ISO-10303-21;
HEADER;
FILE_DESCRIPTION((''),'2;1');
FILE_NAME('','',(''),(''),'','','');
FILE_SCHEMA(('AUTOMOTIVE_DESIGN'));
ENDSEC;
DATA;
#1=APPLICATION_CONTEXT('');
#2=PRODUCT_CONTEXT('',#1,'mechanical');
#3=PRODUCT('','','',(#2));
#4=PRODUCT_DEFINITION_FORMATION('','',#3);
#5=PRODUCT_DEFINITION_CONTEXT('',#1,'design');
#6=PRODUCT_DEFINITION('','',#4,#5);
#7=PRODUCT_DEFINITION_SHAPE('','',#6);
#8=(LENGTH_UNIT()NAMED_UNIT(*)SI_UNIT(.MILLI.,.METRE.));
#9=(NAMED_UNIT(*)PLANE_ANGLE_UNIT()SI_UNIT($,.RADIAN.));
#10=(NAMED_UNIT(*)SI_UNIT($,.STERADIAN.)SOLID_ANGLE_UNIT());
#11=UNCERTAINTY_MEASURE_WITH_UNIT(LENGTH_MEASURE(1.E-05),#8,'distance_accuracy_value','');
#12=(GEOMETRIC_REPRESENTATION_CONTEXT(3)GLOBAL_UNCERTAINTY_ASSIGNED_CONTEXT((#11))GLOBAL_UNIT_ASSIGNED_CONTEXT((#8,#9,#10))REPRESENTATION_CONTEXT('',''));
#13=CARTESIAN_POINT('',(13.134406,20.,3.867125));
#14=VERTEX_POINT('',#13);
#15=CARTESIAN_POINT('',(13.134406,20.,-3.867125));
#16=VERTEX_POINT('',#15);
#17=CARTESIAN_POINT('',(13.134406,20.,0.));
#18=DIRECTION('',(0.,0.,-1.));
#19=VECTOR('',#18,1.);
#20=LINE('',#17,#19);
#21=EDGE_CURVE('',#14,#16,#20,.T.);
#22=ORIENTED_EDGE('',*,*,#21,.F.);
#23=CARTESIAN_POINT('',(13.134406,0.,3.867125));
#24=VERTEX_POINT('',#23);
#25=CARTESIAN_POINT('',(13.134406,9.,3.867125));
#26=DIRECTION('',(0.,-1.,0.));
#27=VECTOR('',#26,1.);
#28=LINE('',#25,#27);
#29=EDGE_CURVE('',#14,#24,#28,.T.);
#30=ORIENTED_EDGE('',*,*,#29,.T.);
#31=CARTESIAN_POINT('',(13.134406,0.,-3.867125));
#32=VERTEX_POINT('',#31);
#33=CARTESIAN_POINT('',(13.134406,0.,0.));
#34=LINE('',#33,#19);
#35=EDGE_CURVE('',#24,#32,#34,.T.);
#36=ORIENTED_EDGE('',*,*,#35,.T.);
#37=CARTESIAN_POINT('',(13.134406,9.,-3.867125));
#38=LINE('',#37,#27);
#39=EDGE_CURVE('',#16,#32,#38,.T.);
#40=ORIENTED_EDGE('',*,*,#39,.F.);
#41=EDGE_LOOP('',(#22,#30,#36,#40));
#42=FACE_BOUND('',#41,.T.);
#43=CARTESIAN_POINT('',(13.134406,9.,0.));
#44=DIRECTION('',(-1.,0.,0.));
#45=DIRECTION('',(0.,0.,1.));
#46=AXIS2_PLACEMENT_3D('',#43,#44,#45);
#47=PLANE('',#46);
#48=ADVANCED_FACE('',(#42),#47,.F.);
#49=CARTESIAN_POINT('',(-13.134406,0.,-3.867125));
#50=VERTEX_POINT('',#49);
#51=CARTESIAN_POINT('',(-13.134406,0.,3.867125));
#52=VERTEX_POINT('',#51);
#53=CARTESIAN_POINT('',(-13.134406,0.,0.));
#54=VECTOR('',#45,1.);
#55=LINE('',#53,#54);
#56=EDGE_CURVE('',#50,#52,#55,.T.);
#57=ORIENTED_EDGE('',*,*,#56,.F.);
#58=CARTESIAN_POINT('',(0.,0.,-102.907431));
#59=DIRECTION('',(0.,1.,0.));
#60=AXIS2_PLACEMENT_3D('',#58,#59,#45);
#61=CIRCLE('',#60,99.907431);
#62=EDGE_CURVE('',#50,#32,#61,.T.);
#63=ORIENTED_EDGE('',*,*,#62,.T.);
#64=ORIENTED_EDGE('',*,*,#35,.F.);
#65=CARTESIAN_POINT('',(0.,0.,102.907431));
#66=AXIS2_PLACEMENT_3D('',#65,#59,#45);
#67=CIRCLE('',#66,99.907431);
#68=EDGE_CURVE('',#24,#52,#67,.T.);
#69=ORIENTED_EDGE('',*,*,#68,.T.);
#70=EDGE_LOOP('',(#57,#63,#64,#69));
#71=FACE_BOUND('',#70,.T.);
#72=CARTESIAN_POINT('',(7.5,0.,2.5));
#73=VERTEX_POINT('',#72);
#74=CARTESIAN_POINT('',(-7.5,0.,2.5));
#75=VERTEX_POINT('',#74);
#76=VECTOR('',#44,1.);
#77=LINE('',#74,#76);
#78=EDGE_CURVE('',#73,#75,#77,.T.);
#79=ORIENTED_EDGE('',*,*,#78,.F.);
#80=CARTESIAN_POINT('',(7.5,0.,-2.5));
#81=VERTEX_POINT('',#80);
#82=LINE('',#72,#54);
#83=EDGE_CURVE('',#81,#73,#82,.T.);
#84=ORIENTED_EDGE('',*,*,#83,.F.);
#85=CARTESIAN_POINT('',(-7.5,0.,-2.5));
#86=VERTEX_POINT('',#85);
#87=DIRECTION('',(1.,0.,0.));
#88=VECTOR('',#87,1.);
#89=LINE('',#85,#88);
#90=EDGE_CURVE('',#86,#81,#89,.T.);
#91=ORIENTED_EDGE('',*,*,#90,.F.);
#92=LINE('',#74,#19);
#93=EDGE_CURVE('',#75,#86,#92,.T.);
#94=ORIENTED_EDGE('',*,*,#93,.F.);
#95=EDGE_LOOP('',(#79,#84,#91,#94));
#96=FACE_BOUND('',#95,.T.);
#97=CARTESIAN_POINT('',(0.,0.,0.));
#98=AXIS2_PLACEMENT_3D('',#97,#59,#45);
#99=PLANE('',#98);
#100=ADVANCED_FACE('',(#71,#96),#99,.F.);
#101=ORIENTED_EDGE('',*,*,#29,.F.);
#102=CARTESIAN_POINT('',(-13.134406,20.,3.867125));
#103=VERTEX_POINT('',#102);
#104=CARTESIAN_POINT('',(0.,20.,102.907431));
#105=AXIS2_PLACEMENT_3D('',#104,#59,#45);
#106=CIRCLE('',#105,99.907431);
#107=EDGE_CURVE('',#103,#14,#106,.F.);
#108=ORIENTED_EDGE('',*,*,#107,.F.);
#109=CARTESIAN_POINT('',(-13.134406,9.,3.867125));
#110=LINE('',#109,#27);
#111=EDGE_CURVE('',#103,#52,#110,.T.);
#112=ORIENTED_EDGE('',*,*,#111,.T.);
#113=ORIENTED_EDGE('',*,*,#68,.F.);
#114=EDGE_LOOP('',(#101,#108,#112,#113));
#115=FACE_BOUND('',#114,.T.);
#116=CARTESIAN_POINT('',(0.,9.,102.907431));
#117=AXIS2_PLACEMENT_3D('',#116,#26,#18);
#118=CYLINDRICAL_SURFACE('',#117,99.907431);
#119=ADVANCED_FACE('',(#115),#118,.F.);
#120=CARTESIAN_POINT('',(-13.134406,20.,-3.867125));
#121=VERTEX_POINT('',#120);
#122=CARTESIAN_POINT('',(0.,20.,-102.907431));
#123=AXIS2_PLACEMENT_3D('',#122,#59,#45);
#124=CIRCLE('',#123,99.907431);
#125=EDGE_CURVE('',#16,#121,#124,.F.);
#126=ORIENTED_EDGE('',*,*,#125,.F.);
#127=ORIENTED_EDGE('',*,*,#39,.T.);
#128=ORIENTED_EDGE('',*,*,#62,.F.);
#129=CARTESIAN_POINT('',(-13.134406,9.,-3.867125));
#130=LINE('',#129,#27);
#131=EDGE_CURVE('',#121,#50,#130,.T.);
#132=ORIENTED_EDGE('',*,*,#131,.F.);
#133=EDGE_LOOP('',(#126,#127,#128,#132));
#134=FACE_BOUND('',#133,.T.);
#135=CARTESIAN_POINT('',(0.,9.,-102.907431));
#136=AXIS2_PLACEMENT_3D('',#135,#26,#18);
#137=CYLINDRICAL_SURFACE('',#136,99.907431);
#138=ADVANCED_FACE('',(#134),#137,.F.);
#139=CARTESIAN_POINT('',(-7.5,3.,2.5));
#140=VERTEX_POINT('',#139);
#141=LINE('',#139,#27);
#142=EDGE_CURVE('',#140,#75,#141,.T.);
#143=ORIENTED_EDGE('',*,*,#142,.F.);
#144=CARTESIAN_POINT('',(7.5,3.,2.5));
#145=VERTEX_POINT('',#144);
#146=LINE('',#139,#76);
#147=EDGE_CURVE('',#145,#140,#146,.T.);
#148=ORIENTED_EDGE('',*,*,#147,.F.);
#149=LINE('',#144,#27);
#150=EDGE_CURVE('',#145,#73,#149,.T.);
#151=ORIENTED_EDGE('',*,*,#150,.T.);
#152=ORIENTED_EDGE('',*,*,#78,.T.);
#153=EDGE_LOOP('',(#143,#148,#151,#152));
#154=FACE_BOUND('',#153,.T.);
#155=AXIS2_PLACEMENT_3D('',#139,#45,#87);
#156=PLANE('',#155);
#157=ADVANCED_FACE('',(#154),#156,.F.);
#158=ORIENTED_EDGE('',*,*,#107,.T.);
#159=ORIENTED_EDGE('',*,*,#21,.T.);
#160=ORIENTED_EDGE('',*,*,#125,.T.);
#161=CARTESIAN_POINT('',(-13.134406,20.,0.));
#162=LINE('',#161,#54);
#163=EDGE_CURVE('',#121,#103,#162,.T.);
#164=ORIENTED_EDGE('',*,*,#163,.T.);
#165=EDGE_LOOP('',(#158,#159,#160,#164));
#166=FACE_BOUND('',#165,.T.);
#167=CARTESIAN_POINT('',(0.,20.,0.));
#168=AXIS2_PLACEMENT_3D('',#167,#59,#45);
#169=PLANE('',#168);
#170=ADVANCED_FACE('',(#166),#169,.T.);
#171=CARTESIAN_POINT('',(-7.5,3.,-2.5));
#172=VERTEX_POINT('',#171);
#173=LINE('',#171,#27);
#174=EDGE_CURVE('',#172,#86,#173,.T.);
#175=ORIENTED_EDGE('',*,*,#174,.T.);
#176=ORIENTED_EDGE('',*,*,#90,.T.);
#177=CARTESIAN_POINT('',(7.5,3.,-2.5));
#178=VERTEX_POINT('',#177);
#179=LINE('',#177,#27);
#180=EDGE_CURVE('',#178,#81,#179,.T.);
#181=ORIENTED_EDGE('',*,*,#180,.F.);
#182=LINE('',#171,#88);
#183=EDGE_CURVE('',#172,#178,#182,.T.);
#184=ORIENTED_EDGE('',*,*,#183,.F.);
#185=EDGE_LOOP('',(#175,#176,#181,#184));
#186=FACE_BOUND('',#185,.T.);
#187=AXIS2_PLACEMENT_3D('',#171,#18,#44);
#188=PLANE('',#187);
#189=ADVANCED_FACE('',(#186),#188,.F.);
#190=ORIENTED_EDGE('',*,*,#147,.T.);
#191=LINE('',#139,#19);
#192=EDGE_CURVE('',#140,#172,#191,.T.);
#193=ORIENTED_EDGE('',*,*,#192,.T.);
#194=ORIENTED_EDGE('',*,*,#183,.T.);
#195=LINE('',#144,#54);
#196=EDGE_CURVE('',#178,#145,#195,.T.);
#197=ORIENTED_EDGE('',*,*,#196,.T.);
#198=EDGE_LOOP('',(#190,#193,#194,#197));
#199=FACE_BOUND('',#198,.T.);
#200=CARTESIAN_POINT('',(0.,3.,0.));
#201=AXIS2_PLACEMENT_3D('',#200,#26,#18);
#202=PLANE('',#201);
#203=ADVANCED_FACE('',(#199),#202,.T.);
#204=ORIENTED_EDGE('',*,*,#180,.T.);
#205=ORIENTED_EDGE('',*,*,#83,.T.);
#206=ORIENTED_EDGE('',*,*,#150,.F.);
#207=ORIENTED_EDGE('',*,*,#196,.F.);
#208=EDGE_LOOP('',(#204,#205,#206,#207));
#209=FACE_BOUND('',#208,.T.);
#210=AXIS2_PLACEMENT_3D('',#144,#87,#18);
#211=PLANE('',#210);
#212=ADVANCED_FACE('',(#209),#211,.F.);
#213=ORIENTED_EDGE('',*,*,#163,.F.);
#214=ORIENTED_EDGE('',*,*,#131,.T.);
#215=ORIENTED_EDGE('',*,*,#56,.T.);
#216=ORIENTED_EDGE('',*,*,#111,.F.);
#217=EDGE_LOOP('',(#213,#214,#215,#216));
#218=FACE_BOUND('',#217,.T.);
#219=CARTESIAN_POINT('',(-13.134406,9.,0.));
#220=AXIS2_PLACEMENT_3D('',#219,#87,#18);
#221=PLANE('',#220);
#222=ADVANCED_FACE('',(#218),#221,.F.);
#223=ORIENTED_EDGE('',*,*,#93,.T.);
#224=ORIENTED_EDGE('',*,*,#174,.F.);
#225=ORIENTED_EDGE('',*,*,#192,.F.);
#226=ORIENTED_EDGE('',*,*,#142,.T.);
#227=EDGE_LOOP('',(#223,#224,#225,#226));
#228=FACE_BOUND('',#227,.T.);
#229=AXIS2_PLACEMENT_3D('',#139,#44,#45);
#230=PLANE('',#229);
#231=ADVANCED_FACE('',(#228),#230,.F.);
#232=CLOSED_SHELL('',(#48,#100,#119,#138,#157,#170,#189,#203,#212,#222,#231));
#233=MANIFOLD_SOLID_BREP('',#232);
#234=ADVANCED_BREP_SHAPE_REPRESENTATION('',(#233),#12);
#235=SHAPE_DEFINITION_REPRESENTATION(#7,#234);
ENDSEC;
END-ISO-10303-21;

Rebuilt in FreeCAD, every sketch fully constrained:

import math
import FreeCAD as App
import Part
import Sketcher

V = App.Vector

doc = App.newDocument("Part")
body = doc.addObject("PartDesign::Body", "Body")

sketch1 = body.newObject("Sketcher::SketchObject", "Sketch")
sketch1.AttachmentSupport = (doc.getObject("XZ_Plane"), [""])
sketch1.MapMode = "FlatFace"
sketch1.addGeometry(Part.ArcOfCircle(Part.Circle(V(0, -103, 0), V(0, 0, 1), 100), math.radians(82.45), math.radians(97.55)), False)
sketch1.addGeometry(Part.LineSegment(V(-13, -4, 0), V(-13, 4, 0)), False)
sketch1.addGeometry(Part.ArcOfCircle(Part.Circle(V(0, 103, 0), V(0, 0, 1), 100), math.radians(-97.55), math.radians(-82.45)), False)
sketch1.addGeometry(Part.LineSegment(V(13, 4, 0), V(13, -4, 0)), False)
sketch1.addConstraint(Sketcher.Constraint("Coincident", 0, 2, 1, 1))
sketch1.addConstraint(Sketcher.Constraint("Coincident", 1, 2, 2, 1))
sketch1.addConstraint(Sketcher.Constraint("Coincident", 2, 2, 3, 1))
sketch1.addConstraint(Sketcher.Constraint("Coincident", 3, 2, 0, 1))
sketch1.addConstraint(Sketcher.Constraint("Vertical", 1))
sketch1.addConstraint(Sketcher.Constraint("Vertical", 3))
sketch1.addConstraint(Sketcher.Constraint("Equal", 0, 2))
sketch1.addConstraint(Sketcher.Constraint("Symmetric", 0, 3, 2, 3, -1, 1))
sketch1.addConstraint(Sketcher.Constraint("Symmetric", 1, 2, 2, 2, -2))
sketch1.addConstraint(Sketcher.Constraint("Radius", 0, 99.907431))
sketch1.addConstraint(Sketcher.Constraint("DistanceY", 1, 1, 1, 2, 7.734251))
sketch1.addConstraint(Sketcher.Constraint("DistanceY", 0, 3, -1, 1, 102.907431))
pad1 = body.newObject("PartDesign::Pad", "Pad")
pad1.Profile = sketch1
pad1.Length = 9
pad1.Reversed = True

sketch2 = body.newObject("Sketcher::SketchObject", "Sketch001")
sketch2.AttachmentSupport = (doc.getObject("XZ_Plane"), [""])
sketch2.MapMode = "FlatFace"
sketch2.AttachmentOffset = App.Placement(V(0, 0, -9), App.Rotation())
sketch2.addGeometry(Part.LineSegment(V(13, 4, 0), V(13, -4, 0)), False)
sketch2.addGeometry(Part.ArcOfCircle(Part.Circle(V(0, -103, 0), V(0, 0, 1), 100), math.radians(82.45), math.radians(97.55)), False)
sketch2.addGeometry(Part.LineSegment(V(-13, -4, 0), V(-13, 4, 0)), False)
sketch2.addGeometry(Part.ArcOfCircle(Part.Circle(V(0, 103, 0), V(0, 0, 1), 100), math.radians(-97.55), math.radians(-82.45)), False)
sketch2.addConstraint(Sketcher.Constraint("Coincident", 0, 2, 1, 1))
sketch2.addConstraint(Sketcher.Constraint("Coincident", 1, 2, 2, 1))
sketch2.addConstraint(Sketcher.Constraint("Coincident", 2, 2, 3, 1))
sketch2.addConstraint(Sketcher.Constraint("Coincident", 3, 2, 0, 1))
sketch2.addConstraint(Sketcher.Constraint("Vertical", 0))
sketch2.addConstraint(Sketcher.Constraint("Vertical", 2))
sketch2.addConstraint(Sketcher.Constraint("Equal", 1, 3))
sketch2.addConstraint(Sketcher.Constraint("Symmetric", 1, 3, 3, 3, -1, 1))
sketch2.addConstraint(Sketcher.Constraint("Symmetric", 0, 2, 1, 2, -2))
sketch2.addConstraint(Sketcher.Constraint("Radius", 1, 99.907431))
sketch2.addConstraint(Sketcher.Constraint("DistanceY", 0, 2, 0, 1, 7.734251))
sketch2.addConstraint(Sketcher.Constraint("DistanceY", 1, 3, -1, 1, 102.907431))
pad2 = body.newObject("PartDesign::Pad", "Pad001")
pad2.Profile = sketch2
pad2.Length = 11
pad2.Reversed = True

sketch3 = body.newObject("Sketcher::SketchObject", "Sketch002")
sketch3.AttachmentSupport = (doc.getObject("XZ_Plane"), [""])
sketch3.MapMode = "FlatFace"
sketch3.addGeometry(Part.LineSegment(V(-8, 2, 0), V(-8, -2, 0)), False)
sketch3.addGeometry(Part.LineSegment(V(-8, -2, 0), V(8, -2, 0)), False)
sketch3.addGeometry(Part.LineSegment(V(8, -2, 0), V(8, 2, 0)), False)
sketch3.addGeometry(Part.LineSegment(V(8, 2, 0), V(-8, 2, 0)), False)
sketch3.addConstraint(Sketcher.Constraint("Coincident", 0, 2, 1, 1))
sketch3.addConstraint(Sketcher.Constraint("Coincident", 1, 2, 2, 1))
sketch3.addConstraint(Sketcher.Constraint("Coincident", 2, 2, 3, 1))
sketch3.addConstraint(Sketcher.Constraint("Coincident", 3, 2, 0, 1))
sketch3.addConstraint(Sketcher.Constraint("Vertical", 0))
sketch3.addConstraint(Sketcher.Constraint("Horizontal", 1))
sketch3.addConstraint(Sketcher.Constraint("Vertical", 2))
sketch3.addConstraint(Sketcher.Constraint("Horizontal", 3))
sketch3.addConstraint(Sketcher.Constraint("Symmetric", 0, 2, 2, 2, -1, 1))
sketch3.addConstraint(Sketcher.Constraint("DistanceX", 1, 1, 1, 2, 15.0))
sketch3.addConstraint(Sketcher.Constraint("DistanceY", 0, 2, 0, 1, 5.0))
pocket1 = body.newObject("PartDesign::Pocket", "Pocket")
pocket1.Profile = sketch3
pocket1.Length = 3

doc.recompute()
